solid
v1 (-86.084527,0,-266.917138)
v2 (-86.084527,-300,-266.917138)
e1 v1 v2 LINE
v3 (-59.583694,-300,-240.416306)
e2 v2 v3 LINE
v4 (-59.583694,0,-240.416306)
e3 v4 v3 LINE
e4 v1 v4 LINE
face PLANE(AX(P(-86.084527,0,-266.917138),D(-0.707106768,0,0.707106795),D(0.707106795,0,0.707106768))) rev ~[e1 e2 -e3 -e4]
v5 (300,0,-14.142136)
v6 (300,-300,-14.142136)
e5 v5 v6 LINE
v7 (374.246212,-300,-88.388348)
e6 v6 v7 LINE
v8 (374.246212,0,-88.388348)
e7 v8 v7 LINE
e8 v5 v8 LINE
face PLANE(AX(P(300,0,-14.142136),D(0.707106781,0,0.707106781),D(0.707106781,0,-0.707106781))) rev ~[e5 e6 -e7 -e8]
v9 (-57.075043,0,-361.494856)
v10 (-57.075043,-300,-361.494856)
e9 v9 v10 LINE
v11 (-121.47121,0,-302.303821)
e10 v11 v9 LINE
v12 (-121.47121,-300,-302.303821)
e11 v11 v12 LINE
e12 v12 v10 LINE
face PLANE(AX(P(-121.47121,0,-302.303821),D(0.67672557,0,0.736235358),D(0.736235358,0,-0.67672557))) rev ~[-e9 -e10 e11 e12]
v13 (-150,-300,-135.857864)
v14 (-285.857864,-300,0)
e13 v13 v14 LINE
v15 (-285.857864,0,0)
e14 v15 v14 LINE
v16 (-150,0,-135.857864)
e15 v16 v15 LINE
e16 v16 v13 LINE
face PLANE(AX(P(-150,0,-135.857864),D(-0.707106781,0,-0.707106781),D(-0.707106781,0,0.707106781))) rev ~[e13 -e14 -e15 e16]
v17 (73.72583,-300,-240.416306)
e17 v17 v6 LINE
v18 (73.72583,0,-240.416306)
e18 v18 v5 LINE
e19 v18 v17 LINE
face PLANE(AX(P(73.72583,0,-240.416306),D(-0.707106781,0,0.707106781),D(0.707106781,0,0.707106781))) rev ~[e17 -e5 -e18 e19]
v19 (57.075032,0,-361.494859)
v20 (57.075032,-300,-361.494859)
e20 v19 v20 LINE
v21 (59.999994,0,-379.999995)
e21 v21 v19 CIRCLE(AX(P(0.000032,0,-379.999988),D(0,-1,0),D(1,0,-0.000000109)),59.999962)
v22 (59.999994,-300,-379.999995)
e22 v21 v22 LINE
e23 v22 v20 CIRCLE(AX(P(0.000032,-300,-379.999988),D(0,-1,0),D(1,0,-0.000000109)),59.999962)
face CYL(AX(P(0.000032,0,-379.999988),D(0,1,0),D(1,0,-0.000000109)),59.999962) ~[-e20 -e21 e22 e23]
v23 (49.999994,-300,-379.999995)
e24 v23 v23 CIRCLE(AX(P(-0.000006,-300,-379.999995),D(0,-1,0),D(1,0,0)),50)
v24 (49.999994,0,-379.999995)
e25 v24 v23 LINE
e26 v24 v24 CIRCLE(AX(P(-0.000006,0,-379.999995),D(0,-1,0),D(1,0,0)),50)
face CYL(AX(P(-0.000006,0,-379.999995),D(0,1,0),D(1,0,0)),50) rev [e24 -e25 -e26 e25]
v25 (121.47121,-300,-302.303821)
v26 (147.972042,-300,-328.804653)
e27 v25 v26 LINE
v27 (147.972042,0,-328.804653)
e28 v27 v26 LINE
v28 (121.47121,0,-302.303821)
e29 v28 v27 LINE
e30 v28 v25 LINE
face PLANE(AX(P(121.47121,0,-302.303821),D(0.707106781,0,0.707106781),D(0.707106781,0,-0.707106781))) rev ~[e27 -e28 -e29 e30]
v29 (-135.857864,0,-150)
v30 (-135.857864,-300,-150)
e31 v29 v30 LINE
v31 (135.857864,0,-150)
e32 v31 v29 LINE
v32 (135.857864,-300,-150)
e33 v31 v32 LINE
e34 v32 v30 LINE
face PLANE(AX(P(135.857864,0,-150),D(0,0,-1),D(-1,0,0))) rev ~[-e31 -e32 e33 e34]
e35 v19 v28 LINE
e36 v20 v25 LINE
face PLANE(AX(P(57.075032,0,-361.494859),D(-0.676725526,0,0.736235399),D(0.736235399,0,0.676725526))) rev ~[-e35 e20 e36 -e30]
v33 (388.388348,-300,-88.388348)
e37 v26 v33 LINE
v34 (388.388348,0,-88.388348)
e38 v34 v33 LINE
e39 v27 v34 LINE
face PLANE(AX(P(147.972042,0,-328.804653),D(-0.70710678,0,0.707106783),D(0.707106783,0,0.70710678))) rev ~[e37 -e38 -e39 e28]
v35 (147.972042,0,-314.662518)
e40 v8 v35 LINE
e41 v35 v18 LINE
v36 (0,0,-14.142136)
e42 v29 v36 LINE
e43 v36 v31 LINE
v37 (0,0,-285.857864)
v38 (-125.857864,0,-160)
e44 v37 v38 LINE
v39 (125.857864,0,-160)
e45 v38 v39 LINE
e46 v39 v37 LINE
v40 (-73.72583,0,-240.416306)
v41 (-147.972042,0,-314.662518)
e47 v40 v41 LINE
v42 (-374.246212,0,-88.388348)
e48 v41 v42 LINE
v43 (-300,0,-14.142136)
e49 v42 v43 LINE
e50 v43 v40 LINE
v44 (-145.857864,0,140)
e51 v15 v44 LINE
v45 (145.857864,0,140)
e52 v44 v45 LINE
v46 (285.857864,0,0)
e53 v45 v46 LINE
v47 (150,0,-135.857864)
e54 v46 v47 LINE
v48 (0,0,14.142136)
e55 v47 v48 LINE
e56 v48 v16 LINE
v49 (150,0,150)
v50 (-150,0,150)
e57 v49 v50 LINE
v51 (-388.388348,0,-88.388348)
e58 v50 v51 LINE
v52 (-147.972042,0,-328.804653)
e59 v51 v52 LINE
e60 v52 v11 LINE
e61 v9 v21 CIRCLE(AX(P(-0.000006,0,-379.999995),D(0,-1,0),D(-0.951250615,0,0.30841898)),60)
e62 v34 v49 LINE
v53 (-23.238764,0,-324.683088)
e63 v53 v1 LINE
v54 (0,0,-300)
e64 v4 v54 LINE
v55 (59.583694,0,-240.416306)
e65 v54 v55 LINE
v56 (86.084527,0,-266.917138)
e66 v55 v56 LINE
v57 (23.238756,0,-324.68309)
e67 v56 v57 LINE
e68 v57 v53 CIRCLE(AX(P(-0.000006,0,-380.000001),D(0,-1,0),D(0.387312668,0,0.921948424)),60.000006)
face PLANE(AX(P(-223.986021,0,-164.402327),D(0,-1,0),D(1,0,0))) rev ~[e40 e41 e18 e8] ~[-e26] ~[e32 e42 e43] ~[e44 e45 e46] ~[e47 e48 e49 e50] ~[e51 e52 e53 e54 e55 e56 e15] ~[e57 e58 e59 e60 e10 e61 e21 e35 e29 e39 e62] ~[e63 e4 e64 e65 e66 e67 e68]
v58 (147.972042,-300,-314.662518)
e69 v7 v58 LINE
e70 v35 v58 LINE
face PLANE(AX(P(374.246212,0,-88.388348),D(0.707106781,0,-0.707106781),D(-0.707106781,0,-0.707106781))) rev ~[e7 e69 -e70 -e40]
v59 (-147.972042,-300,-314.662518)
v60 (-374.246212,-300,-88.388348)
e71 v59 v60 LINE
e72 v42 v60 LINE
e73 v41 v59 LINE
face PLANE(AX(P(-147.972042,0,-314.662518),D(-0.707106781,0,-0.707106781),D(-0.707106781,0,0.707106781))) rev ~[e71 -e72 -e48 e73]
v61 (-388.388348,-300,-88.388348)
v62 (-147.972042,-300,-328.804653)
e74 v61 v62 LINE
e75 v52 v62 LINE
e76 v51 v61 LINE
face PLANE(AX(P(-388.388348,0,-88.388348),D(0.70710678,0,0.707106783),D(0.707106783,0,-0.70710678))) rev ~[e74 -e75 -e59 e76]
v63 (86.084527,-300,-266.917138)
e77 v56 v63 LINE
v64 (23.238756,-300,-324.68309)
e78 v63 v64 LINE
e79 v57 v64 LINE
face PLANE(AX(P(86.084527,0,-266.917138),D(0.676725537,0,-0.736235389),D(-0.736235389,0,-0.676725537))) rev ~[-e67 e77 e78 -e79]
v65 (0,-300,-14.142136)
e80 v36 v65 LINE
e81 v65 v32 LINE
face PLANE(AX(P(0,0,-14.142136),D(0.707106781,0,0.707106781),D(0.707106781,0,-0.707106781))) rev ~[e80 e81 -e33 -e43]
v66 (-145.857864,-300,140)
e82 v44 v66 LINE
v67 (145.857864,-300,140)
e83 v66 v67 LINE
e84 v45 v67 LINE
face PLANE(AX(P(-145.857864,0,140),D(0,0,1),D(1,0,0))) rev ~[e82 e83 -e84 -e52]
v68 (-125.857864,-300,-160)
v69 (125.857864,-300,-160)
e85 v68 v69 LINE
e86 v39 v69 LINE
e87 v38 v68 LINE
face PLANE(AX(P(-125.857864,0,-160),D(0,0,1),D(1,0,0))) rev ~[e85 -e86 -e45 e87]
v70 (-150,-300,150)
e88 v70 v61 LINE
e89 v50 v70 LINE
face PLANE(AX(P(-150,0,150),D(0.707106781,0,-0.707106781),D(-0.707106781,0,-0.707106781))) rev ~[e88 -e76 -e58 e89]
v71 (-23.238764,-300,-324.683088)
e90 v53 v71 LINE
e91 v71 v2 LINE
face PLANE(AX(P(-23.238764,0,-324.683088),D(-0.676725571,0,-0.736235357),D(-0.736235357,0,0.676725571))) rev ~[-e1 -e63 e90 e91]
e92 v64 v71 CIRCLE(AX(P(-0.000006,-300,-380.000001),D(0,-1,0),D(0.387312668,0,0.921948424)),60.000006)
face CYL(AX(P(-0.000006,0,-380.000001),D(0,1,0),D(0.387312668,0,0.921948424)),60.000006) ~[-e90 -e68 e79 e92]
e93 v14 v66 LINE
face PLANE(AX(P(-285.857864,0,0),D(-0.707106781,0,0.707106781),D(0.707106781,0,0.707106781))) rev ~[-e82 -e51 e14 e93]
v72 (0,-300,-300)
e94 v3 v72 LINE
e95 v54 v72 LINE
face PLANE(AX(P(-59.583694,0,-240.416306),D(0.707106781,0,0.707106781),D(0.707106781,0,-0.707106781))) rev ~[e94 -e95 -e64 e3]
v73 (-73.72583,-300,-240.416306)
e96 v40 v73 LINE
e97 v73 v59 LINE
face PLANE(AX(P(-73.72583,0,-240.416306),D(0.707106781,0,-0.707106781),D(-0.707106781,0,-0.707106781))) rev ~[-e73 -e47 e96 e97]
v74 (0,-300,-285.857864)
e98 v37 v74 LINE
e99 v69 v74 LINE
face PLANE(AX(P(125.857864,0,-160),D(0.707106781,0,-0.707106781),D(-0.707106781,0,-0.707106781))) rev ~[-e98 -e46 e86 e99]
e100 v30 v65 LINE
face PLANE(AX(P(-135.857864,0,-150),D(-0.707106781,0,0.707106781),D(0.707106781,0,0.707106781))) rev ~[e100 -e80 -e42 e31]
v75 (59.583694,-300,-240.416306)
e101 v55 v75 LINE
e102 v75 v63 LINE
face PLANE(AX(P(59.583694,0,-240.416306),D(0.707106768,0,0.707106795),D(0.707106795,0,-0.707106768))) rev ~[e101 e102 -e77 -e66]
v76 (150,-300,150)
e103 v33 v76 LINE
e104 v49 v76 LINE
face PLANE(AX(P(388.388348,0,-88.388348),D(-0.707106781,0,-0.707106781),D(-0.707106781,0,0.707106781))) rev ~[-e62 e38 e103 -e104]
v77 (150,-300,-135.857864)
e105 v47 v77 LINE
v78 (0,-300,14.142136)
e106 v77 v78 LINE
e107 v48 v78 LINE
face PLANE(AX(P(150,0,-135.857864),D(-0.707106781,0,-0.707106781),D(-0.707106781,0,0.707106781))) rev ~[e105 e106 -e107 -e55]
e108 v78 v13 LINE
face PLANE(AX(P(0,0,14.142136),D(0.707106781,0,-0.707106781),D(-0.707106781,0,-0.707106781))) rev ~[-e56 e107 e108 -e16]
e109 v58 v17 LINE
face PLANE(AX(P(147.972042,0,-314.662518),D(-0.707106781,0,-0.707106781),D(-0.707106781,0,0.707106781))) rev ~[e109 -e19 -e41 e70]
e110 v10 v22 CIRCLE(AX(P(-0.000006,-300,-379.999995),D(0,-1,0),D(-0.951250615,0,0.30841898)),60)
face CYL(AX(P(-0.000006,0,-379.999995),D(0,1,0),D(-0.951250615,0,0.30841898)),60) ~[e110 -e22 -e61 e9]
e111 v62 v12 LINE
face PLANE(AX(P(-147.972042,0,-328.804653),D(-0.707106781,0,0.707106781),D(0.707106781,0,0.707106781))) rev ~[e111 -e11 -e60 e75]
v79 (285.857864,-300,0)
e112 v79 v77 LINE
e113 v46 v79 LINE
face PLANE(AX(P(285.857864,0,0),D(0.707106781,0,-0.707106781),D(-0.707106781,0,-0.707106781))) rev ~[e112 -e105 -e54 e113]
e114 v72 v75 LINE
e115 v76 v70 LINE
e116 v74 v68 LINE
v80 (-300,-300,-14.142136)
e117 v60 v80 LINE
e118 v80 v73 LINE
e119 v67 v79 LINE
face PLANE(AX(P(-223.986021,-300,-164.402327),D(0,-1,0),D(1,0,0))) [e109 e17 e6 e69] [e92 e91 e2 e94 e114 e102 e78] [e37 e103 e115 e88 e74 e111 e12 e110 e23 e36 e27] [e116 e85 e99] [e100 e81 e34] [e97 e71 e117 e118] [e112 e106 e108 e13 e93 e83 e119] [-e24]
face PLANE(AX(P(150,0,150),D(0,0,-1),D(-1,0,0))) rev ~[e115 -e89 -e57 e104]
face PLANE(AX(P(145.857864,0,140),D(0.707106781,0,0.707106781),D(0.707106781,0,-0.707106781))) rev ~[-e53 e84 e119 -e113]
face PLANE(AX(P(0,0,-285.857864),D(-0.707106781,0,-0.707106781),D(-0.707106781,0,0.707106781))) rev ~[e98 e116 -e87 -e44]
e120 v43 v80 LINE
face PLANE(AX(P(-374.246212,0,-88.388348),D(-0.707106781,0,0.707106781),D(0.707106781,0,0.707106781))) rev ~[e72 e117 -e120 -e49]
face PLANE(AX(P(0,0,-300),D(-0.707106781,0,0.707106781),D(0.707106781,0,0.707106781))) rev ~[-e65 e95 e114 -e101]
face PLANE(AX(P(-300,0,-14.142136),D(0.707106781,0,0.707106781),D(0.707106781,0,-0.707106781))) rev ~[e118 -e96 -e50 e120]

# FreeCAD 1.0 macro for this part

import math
import FreeCAD as App
import Part
import Sketcher

V = App.Vector


def add_polygon(sketch, points):
    """Adds a closed chain of lines whose ends are joined by coincident constraints."""
    first, n = sketch.GeometryCount, len(points)
    for a, b in zip(points, points[1:] + points[:1]):
        sketch.addGeometry(Part.LineSegment(App.Vector(*a, 0), App.Vector(*b, 0)), False)
    for i in range(n):
        sketch.addConstraint(Sketcher.Constraint("Coincident", first + i, 2, first + (i + 1) % n, 1))

doc = App.newDocument("Part")
params = doc.addObject("Spreadsheet::Sheet", "Params")
for row, (alias, value) in enumerate([
    ("sketch1_diameter", "100 mm"),
    ("sketch1_radius", "60 mm"),
    ("sketch1_width", "300 mm"),
    ("sketch1_length", "340 mm"),
    ("sketch1_length2", "340 mm"),
    ("pad1_length", "300 mm"),
], start=1):
    params.set(f"A{row}", alias)
    params.set(f"B{row}", "=" + value)
    params.setAlias(f"B{row}", alias)

body = doc.addObject("PartDesign::Body", "Body")

# Sketch on XZ plane
sketch1 = body.newObject("Sketcher::SketchObject", "Sketch")
sketch1.AttachmentSupport = (doc.getObject("XZ_Plane"), [""])
sketch1.MapMode = "FlatFace"
sketch1.addGeometry(Part.LineSegment(V(-388.388348, -88.388348, 0), V(-147.972042, -328.804653, 0)), False)  # 0
sketch1.addGeometry(Part.LineSegment(V(-147.972042, -328.804653, 0), V(-121.47121, -302.303821, 0)), False)  # 1
sketch1.addGeometry(Part.LineSegment(V(-121.47121, -302.303821, 0), V(-57.075043, -361.494856, 0)), False)  # 2
sketch1.addGeometry(Part.ArcOfCircle(Part.Circle(V(-0.000006, -379.999995, 0), V(0, 0, 1), 60), math.radians(162.036023), math.radians(360)), False)  # 3
sketch1.addGeometry(Part.ArcOfCircle(Part.Circle(V(0.000032, -379.999988, 0), V(0, 0, 1), 59.999962), math.radians(-0.000006), math.radians(17.963979)), False)  # 4
sketch1.addGeometry(Part.LineSegment(V(57.075032, -361.494859, 0), V(121.47121, -302.303821, 0)), False)  # 5
sketch1.addGeometry(Part.LineSegment(V(121.47121, -302.303821, 0), V(147.972042, -328.804653, 0)), False)  # 6
sketch1.addGeometry(Part.LineSegment(V(147.972042, -328.804653, 0), V(388.388348, -88.388348, 0)), False)  # 7
sketch1.addGeometry(Part.LineSegment(V(388.388348, -88.388348, 0), V(150, 150, 0)), False)  # 8
sketch1.addGeometry(Part.LineSegment(V(150, 150, 0), V(-150, 150, 0)), False)  # 9
sketch1.addGeometry(Part.LineSegment(V(-150, 150, 0), V(-388.388348, -88.388348, 0)), False)  # 10
sketch1.addGeometry(Part.Circle(V(-0.000006, -379.999995, 0), V(0, 0, 1), 50), False)  # 11
add_polygon(sketch1, [(-147.972042, -314.662518), (-374.246212, -88.388348), (-300, -14.142136), (-73.72583, -240.416306)])  # lines 12-15
sketch1.addGeometry(Part.LineSegment(V(59.583694, -240.416306, 0), V(86.084527, -266.917138, 0)), False)  # 16
sketch1.addGeometry(Part.LineSegment(V(86.084527, -266.917138, 0), V(23.238756, -324.68309, 0)), False)  # 17
sketch1.addGeometry(Part.ArcOfCircle(Part.Circle(V(-0.000006, -380.000001, 0), V(0, 0, 1), 60.000006), math.radians(67.212611), math.radians(112.787384)), False)  # 18
sketch1.addGeometry(Part.LineSegment(V(-23.238764, -324.683088, 0), V(-86.084527, -266.917138, 0)), False)  # 19
sketch1.addGeometry(Part.LineSegment(V(-86.084527, -266.917138, 0), V(-59.583694, -240.416306, 0)), False)  # 20
sketch1.addGeometry(Part.LineSegment(V(-59.583694, -240.416306, 0), V(0, -300, 0)), False)  # 21
sketch1.addGeometry(Part.LineSegment(V(0, -300, 0), V(59.583694, -240.416306, 0)), False)  # 22
add_polygon(sketch1, [(125.857864, -160), (0, -285.857864), (-125.857864, -160)])  # lines 23-25
add_polygon(sketch1, [(-135.857864, -150), (0, -14.142136), (135.857864, -150)])  # lines 26-28
add_polygon(sketch1, [(374.246212, -88.388348), (147.972042, -314.662518), (73.72583, -240.416306), (300, -14.142136)])  # lines 29-32
add_polygon(sketch1, [(150, -135.857864), (0, 14.142136), (-150, -135.857864), (-285.857864, 0), (-145.857864, 140), (145.857864, 140), (285.857864, 0)])  # lines 33-39
sketch1.addConstraint([
    Sketcher.Constraint("Coincident", 0, 2, 1, 1),
    Sketcher.Constraint("Coincident", 1, 2, 2, 1),
    Sketcher.Constraint("Coincident", 2, 2, 3, 1),
    Sketcher.Constraint("Coincident", 3, 2, 4, 1),
    Sketcher.Constraint("Coincident", 4, 2, 5, 1),
    Sketcher.Constraint("Coincident", 5, 2, 6, 1),
    Sketcher.Constraint("Coincident", 6, 2, 7, 1),
    Sketcher.Constraint("Coincident", 7, 2, 8, 1),
    Sketcher.Constraint("Coincident", 8, 2, 9, 1),
    Sketcher.Constraint("Coincident", 9, 2, 10, 1),
    Sketcher.Constraint("Coincident", 10, 2, 0, 1),
    Sketcher.Constraint("Coincident", 16, 2, 17, 1),
    Sketcher.Constraint("Coincident", 17, 2, 18, 1),
    Sketcher.Constraint("Coincident", 18, 2, 19, 1),
    Sketcher.Constraint("Coincident", 19, 2, 20, 1),
    Sketcher.Constraint("Coincident", 20, 2, 21, 1),
    Sketcher.Constraint("Coincident", 21, 2, 22, 1),
    Sketcher.Constraint("Coincident", 22, 2, 16, 1),
    Sketcher.Constraint("Horizontal", 9),
    Sketcher.Constraint("Horizontal", 25),
    Sketcher.Constraint("Horizontal", 28),
    Sketcher.Constraint("Horizontal", 37),
    Sketcher.Constraint("Coincident", 11, 3, 3, 3),
    Sketcher.Constraint("Coincident", 18, 3, 3, 3),
    Sketcher.Constraint("PointOnObject", 21, 2, -2),
    Sketcher.Constraint("PointOnObject", 23, 2, -2),
    Sketcher.Constraint("PointOnObject", 26, 2, -2),
    Sketcher.Constraint("PointOnObject", 33, 2, -2),
    Sketcher.Constraint("PointOnObject", 35, 2, -1),
    Sketcher.Constraint("PointOnObject", 38, 2, -1),
    Sketcher.Constraint("Diameter", 11, 100.0),
    Sketcher.Constraint("Radius", 3, 60.0),
    Sketcher.Constraint("DistanceX", 9, 2, 9, 1, 300.0),
    Sketcher.Constraint("Distance", 0, 340.0),
    Sketcher.Constraint("Distance", 7, 340.0),
    Sketcher.Constraint("Distance", 12, 320.0),
    Sketcher.Constraint("Distance", 13, 105.0),
    Sketcher.Constraint("Distance", 14, 320.0),
    Sketcher.Constraint("Distance", 15, 105.0),
    Sketcher.Constraint("Distance", 29, 320.0),
    Sketcher.Constraint("Distance", 30, 105.0),
    Sketcher.Constraint("Distance", 31, 320.0),
    Sketcher.Constraint("Distance", 32, 105.0),
    Sketcher.Constraint("DistanceY", 18, 3, -1, 1, 380.000001),
    Sketcher.Constraint("DistanceX", -1, 1, 8, 2, 150.0),
    Sketcher.Constraint("DistanceY", -1, 1, 8, 2, 150.0),
    Sketcher.Constraint("DistanceX", 13, 2, -1, 1, 300.0),
    Sketcher.Constraint("DistanceY", 21, 2, -1, 1, 300.0),
    Sketcher.Constraint("DistanceY", 24, 2, -1, 1, 160.0),
    Sketcher.Constraint("DistanceY", 27, 2, -1, 1, 150.0),
    Sketcher.Constraint("DistanceX", -1, 1, 31, 2, 300.0),
    Sketcher.Constraint("DistanceX", 34, 2, -1, 1, 150.0),
    Sketcher.Constraint("DistanceY", -1, 1, 36, 2, 140.0),
    Sketcher.Constraint("DistanceX", -1, 1, 39, 2, 150.0),
    Sketcher.Constraint("DistanceX", 25, 2, 27, 2, 10.0),
    Sketcher.Constraint("DistanceX", 28, 2, 24, 2, 10.0),
    Sketcher.Constraint("DistanceX", 35, 2, 36, 2, 140.0),
    Sketcher.Constraint("DistanceX", 27, 2, 37, 2, 10.0),
    Sketcher.Constraint("DistanceX", 37, 2, 38, 2, 140.0),
    Sketcher.Constraint("Radius", 4, 59.999962),
    Sketcher.Constraint("Radius", 18, 60.000006),
    Sketcher.Constraint("DistanceX", 4, 3, 4, 2, 57.075),
    Sketcher.Constraint("DistanceX", 15, 2, 2, 2, 90.896999),
    Sketcher.Constraint("Distance", 23, 177.989898),
    Sketcher.Constraint("Distance", 24, 177.989898),
    Sketcher.Constraint("DistanceX", 25, 1, 25, 2, 251.715728),
    Sketcher.Constraint("DistanceX", 37, 1, 37, 2, 291.715728),
    Sketcher.Constraint("DistanceY", 4, 3, 17, 2, 55.316898),
    Sketcher.Constraint("Distance", 2, 87.466822),
    Sketcher.Constraint("Distance", 19, 85.360968),
    Sketcher.Constraint("Distance", 21, 84.264068),
    Sketcher.Constraint("Distance", 22, 84.264068),
    Sketcher.Constraint("DistanceY", 4, 3, -1, 1, 379.999988),
    Sketcher.Constraint("DistanceX", 0, 2, -1, 1, 147.972042),
    Sketcher.Constraint("DistanceX", 1, 2, -1, 1, 121.47121),
    Sketcher.Constraint("DistanceY", 1, 2, -1, 1, 302.303821),
    Sketcher.Constraint("DistanceX", -1, 1, 5, 2, 121.47121),
    Sketcher.Constraint("DistanceY", 5, 2, -1, 1, 302.303821),
    Sketcher.Constraint("DistanceX", -1, 1, 6, 2, 147.972042),
    Sketcher.Constraint("DistanceX", -1, 1, 7, 2, 388.388348),
    Sketcher.Constraint("DistanceX", 10, 2, -1, 1, 388.388348),
    Sketcher.Constraint("DistanceX", 12, 2, -1, 1, 374.246212),
    Sketcher.Constraint("DistanceX", 14, 2, -1, 1, 73.72583),
    Sketcher.Constraint("DistanceY", 15, 2, -1, 1, 314.662518),
    Sketcher.Constraint("DistanceY", 16, 2, -1, 1, 266.917138),
    Sketcher.Constraint("DistanceY", 18, 2, -1, 1, 324.683088),
    Sketcher.Constraint("DistanceY", 19, 2, -1, 1, 266.917138),
    Sketcher.Constraint("DistanceX", -1, 1, 29, 2, 147.972042),
    Sketcher.Constraint("DistanceY", 29, 2, -1, 1, 314.662518),
    Sketcher.Constraint("DistanceX", -1, 1, 30, 2, 73.72583),
    Sketcher.Constraint("DistanceY", 3, 3, 0, 2, 51.195342),
    Sketcher.Constraint("DistanceY", 3, 2, 2, 2, 18.505139),
    Sketcher.Constraint("DistanceY", 6, 2, 5, 2, 26.500832),
    Sketcher.Constraint("DistanceX", 20, 2, 18, 2, 36.34493),
    Sketcher.Constraint("DistanceY", 23, 2, 22, 2, 45.441558),
    Sketcher.Constraint("DistanceY", 20, 2, 26, 2, 226.27417),
    Sketcher.Constraint("DistanceY", 14, 2, 34, 2, 104.558442),
    Sketcher.Constraint("DistanceY", 30, 2, 39, 2, 104.558442),
    Sketcher.Constraint("Distance", 16, 37.477837),
    Sketcher.Constraint("Distance", 33, 212.132034),
])
sketch1.setExpression("Constraints[51]", "Params.sketch1_diameter")
sketch1.setExpression("Constraints[52]", "Params.sketch1_radius")
sketch1.setExpression("Constraints[53]", "Params.sketch1_width")
sketch1.setExpression("Constraints[54]", "Params.sketch1_length")
sketch1.setExpression("Constraints[55]", "Params.sketch1_length2")
pad1 = body.newObject("PartDesign::Pad", "Pad")
pad1.Profile = sketch1
pad1.setExpression("Length", "Params.pad1_length")

doc.recompute()
